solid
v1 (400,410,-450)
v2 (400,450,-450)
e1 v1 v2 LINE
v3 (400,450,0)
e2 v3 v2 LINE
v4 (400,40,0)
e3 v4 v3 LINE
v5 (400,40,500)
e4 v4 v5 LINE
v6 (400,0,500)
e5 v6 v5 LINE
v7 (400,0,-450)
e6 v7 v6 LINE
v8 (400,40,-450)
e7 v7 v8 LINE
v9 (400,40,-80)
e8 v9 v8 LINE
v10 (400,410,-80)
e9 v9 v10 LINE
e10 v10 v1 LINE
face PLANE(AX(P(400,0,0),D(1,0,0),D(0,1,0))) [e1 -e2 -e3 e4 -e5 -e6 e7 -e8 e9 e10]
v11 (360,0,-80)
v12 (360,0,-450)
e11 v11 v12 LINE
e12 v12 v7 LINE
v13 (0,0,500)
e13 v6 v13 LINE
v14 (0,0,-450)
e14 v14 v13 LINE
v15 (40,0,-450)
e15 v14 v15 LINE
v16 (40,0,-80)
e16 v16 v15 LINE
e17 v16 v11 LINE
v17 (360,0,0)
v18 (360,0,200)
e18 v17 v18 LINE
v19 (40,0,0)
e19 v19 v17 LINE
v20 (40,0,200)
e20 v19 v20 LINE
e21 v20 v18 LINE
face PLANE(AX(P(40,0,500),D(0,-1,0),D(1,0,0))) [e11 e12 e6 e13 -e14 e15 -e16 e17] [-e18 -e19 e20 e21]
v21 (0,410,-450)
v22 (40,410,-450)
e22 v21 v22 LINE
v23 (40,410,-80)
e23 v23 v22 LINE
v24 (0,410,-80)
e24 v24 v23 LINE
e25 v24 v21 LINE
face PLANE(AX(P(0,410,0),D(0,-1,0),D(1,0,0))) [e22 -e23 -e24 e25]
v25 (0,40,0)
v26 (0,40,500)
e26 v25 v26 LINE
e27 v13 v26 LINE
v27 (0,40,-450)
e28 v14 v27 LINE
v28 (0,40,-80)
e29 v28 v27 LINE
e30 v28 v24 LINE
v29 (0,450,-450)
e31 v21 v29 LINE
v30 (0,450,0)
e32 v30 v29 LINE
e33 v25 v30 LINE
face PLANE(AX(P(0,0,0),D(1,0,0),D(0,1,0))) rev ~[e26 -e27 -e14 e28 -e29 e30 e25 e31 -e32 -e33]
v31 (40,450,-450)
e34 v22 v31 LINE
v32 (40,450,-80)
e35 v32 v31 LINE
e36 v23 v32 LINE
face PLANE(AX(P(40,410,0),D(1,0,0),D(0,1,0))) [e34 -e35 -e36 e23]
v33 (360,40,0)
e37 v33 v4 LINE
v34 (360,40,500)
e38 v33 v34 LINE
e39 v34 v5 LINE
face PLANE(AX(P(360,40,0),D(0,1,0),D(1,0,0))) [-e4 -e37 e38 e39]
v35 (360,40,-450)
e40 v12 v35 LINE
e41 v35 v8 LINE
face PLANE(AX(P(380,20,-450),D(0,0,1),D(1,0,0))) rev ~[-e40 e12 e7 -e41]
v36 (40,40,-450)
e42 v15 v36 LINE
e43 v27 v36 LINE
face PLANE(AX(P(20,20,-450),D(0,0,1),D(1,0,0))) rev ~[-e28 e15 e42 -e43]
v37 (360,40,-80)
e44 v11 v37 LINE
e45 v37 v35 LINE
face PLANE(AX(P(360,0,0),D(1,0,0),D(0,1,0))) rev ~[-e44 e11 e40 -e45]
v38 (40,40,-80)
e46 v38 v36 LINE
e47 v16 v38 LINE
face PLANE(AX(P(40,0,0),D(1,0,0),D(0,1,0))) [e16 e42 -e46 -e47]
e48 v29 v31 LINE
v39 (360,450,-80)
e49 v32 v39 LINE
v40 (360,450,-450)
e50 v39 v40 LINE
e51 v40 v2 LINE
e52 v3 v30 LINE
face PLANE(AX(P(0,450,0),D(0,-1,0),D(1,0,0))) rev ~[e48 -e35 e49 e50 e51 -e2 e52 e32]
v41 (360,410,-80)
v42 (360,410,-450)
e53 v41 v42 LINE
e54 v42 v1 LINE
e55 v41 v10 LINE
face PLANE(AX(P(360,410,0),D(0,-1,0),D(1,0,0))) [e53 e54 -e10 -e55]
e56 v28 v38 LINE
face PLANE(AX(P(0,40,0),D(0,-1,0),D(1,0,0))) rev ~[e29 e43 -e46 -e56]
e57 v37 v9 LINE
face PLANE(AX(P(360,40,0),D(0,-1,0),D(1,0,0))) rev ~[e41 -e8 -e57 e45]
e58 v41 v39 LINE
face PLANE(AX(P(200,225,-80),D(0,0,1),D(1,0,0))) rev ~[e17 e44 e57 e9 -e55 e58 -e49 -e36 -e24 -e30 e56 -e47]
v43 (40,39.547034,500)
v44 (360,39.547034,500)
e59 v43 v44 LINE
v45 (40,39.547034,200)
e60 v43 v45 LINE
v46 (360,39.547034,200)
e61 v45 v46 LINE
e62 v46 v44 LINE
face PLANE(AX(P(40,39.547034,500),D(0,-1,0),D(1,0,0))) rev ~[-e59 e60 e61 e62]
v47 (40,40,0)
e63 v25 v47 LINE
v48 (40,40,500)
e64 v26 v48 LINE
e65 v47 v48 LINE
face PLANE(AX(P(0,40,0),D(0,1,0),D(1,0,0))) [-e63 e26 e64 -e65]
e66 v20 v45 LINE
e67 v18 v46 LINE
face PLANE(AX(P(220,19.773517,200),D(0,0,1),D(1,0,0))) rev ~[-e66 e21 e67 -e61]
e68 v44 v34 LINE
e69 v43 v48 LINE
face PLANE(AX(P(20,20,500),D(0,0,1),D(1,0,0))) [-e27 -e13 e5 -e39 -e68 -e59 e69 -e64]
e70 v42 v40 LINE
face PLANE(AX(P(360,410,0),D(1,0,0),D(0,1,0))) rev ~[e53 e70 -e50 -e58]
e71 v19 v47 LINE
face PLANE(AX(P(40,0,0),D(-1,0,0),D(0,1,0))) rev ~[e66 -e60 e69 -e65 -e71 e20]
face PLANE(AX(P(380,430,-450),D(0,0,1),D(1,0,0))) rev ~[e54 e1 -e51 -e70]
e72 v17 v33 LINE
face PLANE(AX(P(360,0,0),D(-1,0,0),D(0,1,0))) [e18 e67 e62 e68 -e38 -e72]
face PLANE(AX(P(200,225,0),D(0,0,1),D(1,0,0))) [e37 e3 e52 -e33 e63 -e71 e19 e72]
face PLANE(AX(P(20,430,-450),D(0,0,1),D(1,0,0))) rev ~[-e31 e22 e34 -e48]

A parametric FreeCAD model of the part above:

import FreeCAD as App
import Part
import Sketcher

V = App.Vector
Q = App.Units.Quantity


def add_polygon(sketch, points):
    """Adds a closed chain of lines whose ends are joined by coincident constraints."""
    first, n = sketch.GeometryCount, len(points)
    for a, b in zip(points, points[1:] + points[:1]):
        sketch.addGeometry(Part.LineSegment(App.Vector(*a, 0), App.Vector(*b, 0)), False)
    for i in range(n):
        sketch.addConstraint(Sketcher.Constraint("Coincident", first + i, 2, first + (i + 1) % n, 1))

doc = App.newDocument("Part")
body = doc.addObject("PartDesign::Body", "Body")

# Sketch on XY plane
sketch1 = body.newObject("Sketcher::SketchObject", "Sketch")
sketch1.AttachmentSupport = (doc.getObject("XY_Plane"), [""])
sketch1.MapMode = "FlatFace"
add_polygon(sketch1, [(0, 450), (0, 0), (400, 0), (400, 450)])  # lines 0-3
sketch1.addConstraint(Sketcher.Constraint("Vertical", 0))
sketch1.addConstraint(Sketcher.Constraint("Horizontal", 1))
sketch1.addConstraint(Sketcher.Constraint("Vertical", 2))
sketch1.addConstraint(Sketcher.Constraint("Horizontal", 3))
sketch1.addConstraint(Sketcher.Constraint("Coincident", 0, 2, -1, 1))
sketch1.addConstraint(Sketcher.Constraint("DistanceX", 1, 1, 1, 2, Q("400 mm")))
sketch1.addConstraint(Sketcher.Constraint("DistanceY", 0, 2, 0, 1, Q("450 mm")))
pad1 = body.newObject("PartDesign::Pad", "Pad")
pad1.Profile = sketch1
pad1.Length = 80
pad1.Reversed = True

# Sketch on XY plane
sketch2 = body.newObject("Sketcher::SketchObject", "Sketch001")
sketch2.AttachmentSupport = (doc.getObject("XY_Plane"), [""])
sketch2.MapMode = "FlatFace"
add_polygon(sketch2, [(0, 40), (0, 0), (40, 0), (40, 40)])  # lines 0-3
add_polygon(sketch2, [(360, 40), (360, 0), (400, 0), (400, 40)])  # lines 4-7
sketch2.addConstraint(Sketcher.Constraint("Vertical", 0))
sketch2.addConstraint(Sketcher.Constraint("Horizontal", 1))
sketch2.addConstraint(Sketcher.Constraint("Vertical", 2))
sketch2.addConstraint(Sketcher.Constraint("Horizontal", 3))
sketch2.addConstraint(Sketcher.Constraint("Vertical", 4))
sketch2.addConstraint(Sketcher.Constraint("Horizontal", 5))
sketch2.addConstraint(Sketcher.Constraint("Vertical", 6))
sketch2.addConstraint(Sketcher.Constraint("Horizontal", 7))
sketch2.addConstraint(Sketcher.Constraint("Coincident", 0, 2, -1, 1))
sketch2.addConstraint(Sketcher.Constraint("PointOnObject", 4, 2, -1))
sketch2.addConstraint(Sketcher.Constraint("Horizontal", 3, 2, 6, 2))
sketch2.addConstraint(Sketcher.Constraint("Equal", 3, 5))
sketch2.addConstraint(Sketcher.Constraint("Equal", 7, 0))
sketch2.addConstraint(Sketcher.Constraint("DistanceX", 1, 1, 1, 2, Q("40 mm")))
sketch2.addConstraint(Sketcher.Constraint("DistanceX", -1, 1, 4, 2, Q("360 mm")))
pad2 = body.newObject("PartDesign::Pad", "Pad001")
pad2.Profile = sketch2
pad2.Length = 500

# Sketch on XY plane
sketch3 = body.newObject("Sketcher::SketchObject", "Sketch002")
sketch3.AttachmentSupport = (doc.getObject("XY_Plane"), [""])
sketch3.MapMode = "FlatFace"
add_polygon(sketch3, [(0, 40), (0, 0), (40, 0), (40, 40)])  # lines 0-3
add_polygon(sketch3, [(360, 40), (360, 0), (400, 0), (400, 40)])  # lines 4-7
add_polygon(sketch3, [(360, 450), (360, 410), (400, 410), (400, 450)])  # lines 8-11
add_polygon(sketch3, [(0, 450), (0, 410), (40, 410), (40, 450)])  # lines 12-15
sketch3.addConstraint(Sketcher.Constraint("Vertical", 0))
sketch3.addConstraint(Sketcher.Constraint("Horizontal", 1))
sketch3.addConstraint(Sketcher.Constraint("Vertical", 2))
sketch3.addConstraint(Sketcher.Constraint("Horizontal", 3))
sketch3.addConstraint(Sketcher.Constraint("Vertical", 4))
sketch3.addConstraint(Sketcher.Constraint("Horizontal", 5))
sketch3.addConstraint(Sketcher.Constraint("Vertical", 6))
sketch3.addConstraint(Sketcher.Constraint("Horizontal", 7))
sketch3.addConstraint(Sketcher.Constraint("Vertical", 8))
sketch3.addConstraint(Sketcher.Constraint("Horizontal", 9))
sketch3.addConstraint(Sketcher.Constraint("Vertical", 10))
sketch3.addConstraint(Sketcher.Constraint("Horizontal", 11))
sketch3.addConstraint(Sketcher.Constraint("Vertical", 12))
sketch3.addConstraint(Sketcher.Constraint("Horizontal", 13))
sketch3.addConstraint(Sketcher.Constraint("Vertical", 14))
sketch3.addConstraint(Sketcher.Constraint("Horizontal", 15))
sketch3.addConstraint(Sketcher.Constraint("Coincident", 0, 2, -1, 1))
sketch3.addConstraint(Sketcher.Constraint("PointOnObject", 4, 2, -1))
sketch3.addConstraint(Sketcher.Constraint("PointOnObject", 12, 2, -2))
sketch3.addConstraint(Sketcher.Constraint("Horizontal", 3, 2, 6, 2))
sketch3.addConstraint(Sketcher.Constraint("Horizontal", 9, 2, 12, 2))
sketch3.addConstraint(Sketcher.Constraint("Horizontal", 11, 2, 14, 2))
sketch3.addConstraint(Sketcher.Constraint("Vertical", 7, 2, 8, 2))
sketch3.addConstraint(Sketcher.Constraint("Vertical", 6, 2, 9, 2))
sketch3.addConstraint(Sketcher.Constraint("Vertical", 2, 2, 13, 2))
sketch3.addConstraint(Sketcher.Constraint("Equal", 3, 5))
sketch3.addConstraint(Sketcher.Constraint("Equal", 15, 0))
sketch3.addConstraint(Sketcher.Constraint("Equal", 6, 8))
sketch3.addConstraint(Sketcher.Constraint("DistanceX", 1, 1, 1, 2, Q("40 mm")))
sketch3.addConstraint(Sketcher.Constraint("DistanceX", -1, 1, 4, 2, Q("360 mm")))
sketch3.addConstraint(Sketcher.Constraint("DistanceY", -1, 1, 8, 2, Q("410 mm")))
pad3 = body.newObject("PartDesign::Pad", "Pad002")
pad3.Profile = sketch3
pad3.Length = 450
pad3.Reversed = True

# Sketch on XY plane
sketch4 = body.newObject("Sketcher::SketchObject", "Sketch003")
sketch4.AttachmentSupport = (doc.getObject("XY_Plane"), [""])
sketch4.MapMode = "FlatFace"
sketch4.AttachmentOffset = App.Placement(V(0, 0, 500), App.Rotation())
add_polygon(sketch4, [(40, 40), (40, 0), (400, 0), (400, 40)])  # lines 0-3
sketch4.addConstraint(Sketcher.Constraint("Vertical", 0))
sketch4.addConstraint(Sketcher.Constraint("Horizontal", 1))
sketch4.addConstraint(Sketcher.Constraint("Vertical", 2))
sketch4.addConstraint(Sketcher.Constraint("Horizontal", 3))
sketch4.addConstraint(Sketcher.Constraint("PointOnObject", 0, 2, -1))
sketch4.addConstraint(Sketcher.Constraint("DistanceX", 1, 1, 1, 2, Q("360 mm")))
sketch4.addConstraint(Sketcher.Constraint("DistanceX", -1, 1, 0, 2, Q("40 mm")))
sketch4.addConstraint(Sketcher.Constraint("DistanceY", 0, 2, 0, 1, Q("39.547034 mm")))
pad4 = body.newObject("PartDesign::Pad", "Pad003")
pad4.Profile = sketch4
pad4.Length = 300
pad4.Reversed = True

doc.recompute()
